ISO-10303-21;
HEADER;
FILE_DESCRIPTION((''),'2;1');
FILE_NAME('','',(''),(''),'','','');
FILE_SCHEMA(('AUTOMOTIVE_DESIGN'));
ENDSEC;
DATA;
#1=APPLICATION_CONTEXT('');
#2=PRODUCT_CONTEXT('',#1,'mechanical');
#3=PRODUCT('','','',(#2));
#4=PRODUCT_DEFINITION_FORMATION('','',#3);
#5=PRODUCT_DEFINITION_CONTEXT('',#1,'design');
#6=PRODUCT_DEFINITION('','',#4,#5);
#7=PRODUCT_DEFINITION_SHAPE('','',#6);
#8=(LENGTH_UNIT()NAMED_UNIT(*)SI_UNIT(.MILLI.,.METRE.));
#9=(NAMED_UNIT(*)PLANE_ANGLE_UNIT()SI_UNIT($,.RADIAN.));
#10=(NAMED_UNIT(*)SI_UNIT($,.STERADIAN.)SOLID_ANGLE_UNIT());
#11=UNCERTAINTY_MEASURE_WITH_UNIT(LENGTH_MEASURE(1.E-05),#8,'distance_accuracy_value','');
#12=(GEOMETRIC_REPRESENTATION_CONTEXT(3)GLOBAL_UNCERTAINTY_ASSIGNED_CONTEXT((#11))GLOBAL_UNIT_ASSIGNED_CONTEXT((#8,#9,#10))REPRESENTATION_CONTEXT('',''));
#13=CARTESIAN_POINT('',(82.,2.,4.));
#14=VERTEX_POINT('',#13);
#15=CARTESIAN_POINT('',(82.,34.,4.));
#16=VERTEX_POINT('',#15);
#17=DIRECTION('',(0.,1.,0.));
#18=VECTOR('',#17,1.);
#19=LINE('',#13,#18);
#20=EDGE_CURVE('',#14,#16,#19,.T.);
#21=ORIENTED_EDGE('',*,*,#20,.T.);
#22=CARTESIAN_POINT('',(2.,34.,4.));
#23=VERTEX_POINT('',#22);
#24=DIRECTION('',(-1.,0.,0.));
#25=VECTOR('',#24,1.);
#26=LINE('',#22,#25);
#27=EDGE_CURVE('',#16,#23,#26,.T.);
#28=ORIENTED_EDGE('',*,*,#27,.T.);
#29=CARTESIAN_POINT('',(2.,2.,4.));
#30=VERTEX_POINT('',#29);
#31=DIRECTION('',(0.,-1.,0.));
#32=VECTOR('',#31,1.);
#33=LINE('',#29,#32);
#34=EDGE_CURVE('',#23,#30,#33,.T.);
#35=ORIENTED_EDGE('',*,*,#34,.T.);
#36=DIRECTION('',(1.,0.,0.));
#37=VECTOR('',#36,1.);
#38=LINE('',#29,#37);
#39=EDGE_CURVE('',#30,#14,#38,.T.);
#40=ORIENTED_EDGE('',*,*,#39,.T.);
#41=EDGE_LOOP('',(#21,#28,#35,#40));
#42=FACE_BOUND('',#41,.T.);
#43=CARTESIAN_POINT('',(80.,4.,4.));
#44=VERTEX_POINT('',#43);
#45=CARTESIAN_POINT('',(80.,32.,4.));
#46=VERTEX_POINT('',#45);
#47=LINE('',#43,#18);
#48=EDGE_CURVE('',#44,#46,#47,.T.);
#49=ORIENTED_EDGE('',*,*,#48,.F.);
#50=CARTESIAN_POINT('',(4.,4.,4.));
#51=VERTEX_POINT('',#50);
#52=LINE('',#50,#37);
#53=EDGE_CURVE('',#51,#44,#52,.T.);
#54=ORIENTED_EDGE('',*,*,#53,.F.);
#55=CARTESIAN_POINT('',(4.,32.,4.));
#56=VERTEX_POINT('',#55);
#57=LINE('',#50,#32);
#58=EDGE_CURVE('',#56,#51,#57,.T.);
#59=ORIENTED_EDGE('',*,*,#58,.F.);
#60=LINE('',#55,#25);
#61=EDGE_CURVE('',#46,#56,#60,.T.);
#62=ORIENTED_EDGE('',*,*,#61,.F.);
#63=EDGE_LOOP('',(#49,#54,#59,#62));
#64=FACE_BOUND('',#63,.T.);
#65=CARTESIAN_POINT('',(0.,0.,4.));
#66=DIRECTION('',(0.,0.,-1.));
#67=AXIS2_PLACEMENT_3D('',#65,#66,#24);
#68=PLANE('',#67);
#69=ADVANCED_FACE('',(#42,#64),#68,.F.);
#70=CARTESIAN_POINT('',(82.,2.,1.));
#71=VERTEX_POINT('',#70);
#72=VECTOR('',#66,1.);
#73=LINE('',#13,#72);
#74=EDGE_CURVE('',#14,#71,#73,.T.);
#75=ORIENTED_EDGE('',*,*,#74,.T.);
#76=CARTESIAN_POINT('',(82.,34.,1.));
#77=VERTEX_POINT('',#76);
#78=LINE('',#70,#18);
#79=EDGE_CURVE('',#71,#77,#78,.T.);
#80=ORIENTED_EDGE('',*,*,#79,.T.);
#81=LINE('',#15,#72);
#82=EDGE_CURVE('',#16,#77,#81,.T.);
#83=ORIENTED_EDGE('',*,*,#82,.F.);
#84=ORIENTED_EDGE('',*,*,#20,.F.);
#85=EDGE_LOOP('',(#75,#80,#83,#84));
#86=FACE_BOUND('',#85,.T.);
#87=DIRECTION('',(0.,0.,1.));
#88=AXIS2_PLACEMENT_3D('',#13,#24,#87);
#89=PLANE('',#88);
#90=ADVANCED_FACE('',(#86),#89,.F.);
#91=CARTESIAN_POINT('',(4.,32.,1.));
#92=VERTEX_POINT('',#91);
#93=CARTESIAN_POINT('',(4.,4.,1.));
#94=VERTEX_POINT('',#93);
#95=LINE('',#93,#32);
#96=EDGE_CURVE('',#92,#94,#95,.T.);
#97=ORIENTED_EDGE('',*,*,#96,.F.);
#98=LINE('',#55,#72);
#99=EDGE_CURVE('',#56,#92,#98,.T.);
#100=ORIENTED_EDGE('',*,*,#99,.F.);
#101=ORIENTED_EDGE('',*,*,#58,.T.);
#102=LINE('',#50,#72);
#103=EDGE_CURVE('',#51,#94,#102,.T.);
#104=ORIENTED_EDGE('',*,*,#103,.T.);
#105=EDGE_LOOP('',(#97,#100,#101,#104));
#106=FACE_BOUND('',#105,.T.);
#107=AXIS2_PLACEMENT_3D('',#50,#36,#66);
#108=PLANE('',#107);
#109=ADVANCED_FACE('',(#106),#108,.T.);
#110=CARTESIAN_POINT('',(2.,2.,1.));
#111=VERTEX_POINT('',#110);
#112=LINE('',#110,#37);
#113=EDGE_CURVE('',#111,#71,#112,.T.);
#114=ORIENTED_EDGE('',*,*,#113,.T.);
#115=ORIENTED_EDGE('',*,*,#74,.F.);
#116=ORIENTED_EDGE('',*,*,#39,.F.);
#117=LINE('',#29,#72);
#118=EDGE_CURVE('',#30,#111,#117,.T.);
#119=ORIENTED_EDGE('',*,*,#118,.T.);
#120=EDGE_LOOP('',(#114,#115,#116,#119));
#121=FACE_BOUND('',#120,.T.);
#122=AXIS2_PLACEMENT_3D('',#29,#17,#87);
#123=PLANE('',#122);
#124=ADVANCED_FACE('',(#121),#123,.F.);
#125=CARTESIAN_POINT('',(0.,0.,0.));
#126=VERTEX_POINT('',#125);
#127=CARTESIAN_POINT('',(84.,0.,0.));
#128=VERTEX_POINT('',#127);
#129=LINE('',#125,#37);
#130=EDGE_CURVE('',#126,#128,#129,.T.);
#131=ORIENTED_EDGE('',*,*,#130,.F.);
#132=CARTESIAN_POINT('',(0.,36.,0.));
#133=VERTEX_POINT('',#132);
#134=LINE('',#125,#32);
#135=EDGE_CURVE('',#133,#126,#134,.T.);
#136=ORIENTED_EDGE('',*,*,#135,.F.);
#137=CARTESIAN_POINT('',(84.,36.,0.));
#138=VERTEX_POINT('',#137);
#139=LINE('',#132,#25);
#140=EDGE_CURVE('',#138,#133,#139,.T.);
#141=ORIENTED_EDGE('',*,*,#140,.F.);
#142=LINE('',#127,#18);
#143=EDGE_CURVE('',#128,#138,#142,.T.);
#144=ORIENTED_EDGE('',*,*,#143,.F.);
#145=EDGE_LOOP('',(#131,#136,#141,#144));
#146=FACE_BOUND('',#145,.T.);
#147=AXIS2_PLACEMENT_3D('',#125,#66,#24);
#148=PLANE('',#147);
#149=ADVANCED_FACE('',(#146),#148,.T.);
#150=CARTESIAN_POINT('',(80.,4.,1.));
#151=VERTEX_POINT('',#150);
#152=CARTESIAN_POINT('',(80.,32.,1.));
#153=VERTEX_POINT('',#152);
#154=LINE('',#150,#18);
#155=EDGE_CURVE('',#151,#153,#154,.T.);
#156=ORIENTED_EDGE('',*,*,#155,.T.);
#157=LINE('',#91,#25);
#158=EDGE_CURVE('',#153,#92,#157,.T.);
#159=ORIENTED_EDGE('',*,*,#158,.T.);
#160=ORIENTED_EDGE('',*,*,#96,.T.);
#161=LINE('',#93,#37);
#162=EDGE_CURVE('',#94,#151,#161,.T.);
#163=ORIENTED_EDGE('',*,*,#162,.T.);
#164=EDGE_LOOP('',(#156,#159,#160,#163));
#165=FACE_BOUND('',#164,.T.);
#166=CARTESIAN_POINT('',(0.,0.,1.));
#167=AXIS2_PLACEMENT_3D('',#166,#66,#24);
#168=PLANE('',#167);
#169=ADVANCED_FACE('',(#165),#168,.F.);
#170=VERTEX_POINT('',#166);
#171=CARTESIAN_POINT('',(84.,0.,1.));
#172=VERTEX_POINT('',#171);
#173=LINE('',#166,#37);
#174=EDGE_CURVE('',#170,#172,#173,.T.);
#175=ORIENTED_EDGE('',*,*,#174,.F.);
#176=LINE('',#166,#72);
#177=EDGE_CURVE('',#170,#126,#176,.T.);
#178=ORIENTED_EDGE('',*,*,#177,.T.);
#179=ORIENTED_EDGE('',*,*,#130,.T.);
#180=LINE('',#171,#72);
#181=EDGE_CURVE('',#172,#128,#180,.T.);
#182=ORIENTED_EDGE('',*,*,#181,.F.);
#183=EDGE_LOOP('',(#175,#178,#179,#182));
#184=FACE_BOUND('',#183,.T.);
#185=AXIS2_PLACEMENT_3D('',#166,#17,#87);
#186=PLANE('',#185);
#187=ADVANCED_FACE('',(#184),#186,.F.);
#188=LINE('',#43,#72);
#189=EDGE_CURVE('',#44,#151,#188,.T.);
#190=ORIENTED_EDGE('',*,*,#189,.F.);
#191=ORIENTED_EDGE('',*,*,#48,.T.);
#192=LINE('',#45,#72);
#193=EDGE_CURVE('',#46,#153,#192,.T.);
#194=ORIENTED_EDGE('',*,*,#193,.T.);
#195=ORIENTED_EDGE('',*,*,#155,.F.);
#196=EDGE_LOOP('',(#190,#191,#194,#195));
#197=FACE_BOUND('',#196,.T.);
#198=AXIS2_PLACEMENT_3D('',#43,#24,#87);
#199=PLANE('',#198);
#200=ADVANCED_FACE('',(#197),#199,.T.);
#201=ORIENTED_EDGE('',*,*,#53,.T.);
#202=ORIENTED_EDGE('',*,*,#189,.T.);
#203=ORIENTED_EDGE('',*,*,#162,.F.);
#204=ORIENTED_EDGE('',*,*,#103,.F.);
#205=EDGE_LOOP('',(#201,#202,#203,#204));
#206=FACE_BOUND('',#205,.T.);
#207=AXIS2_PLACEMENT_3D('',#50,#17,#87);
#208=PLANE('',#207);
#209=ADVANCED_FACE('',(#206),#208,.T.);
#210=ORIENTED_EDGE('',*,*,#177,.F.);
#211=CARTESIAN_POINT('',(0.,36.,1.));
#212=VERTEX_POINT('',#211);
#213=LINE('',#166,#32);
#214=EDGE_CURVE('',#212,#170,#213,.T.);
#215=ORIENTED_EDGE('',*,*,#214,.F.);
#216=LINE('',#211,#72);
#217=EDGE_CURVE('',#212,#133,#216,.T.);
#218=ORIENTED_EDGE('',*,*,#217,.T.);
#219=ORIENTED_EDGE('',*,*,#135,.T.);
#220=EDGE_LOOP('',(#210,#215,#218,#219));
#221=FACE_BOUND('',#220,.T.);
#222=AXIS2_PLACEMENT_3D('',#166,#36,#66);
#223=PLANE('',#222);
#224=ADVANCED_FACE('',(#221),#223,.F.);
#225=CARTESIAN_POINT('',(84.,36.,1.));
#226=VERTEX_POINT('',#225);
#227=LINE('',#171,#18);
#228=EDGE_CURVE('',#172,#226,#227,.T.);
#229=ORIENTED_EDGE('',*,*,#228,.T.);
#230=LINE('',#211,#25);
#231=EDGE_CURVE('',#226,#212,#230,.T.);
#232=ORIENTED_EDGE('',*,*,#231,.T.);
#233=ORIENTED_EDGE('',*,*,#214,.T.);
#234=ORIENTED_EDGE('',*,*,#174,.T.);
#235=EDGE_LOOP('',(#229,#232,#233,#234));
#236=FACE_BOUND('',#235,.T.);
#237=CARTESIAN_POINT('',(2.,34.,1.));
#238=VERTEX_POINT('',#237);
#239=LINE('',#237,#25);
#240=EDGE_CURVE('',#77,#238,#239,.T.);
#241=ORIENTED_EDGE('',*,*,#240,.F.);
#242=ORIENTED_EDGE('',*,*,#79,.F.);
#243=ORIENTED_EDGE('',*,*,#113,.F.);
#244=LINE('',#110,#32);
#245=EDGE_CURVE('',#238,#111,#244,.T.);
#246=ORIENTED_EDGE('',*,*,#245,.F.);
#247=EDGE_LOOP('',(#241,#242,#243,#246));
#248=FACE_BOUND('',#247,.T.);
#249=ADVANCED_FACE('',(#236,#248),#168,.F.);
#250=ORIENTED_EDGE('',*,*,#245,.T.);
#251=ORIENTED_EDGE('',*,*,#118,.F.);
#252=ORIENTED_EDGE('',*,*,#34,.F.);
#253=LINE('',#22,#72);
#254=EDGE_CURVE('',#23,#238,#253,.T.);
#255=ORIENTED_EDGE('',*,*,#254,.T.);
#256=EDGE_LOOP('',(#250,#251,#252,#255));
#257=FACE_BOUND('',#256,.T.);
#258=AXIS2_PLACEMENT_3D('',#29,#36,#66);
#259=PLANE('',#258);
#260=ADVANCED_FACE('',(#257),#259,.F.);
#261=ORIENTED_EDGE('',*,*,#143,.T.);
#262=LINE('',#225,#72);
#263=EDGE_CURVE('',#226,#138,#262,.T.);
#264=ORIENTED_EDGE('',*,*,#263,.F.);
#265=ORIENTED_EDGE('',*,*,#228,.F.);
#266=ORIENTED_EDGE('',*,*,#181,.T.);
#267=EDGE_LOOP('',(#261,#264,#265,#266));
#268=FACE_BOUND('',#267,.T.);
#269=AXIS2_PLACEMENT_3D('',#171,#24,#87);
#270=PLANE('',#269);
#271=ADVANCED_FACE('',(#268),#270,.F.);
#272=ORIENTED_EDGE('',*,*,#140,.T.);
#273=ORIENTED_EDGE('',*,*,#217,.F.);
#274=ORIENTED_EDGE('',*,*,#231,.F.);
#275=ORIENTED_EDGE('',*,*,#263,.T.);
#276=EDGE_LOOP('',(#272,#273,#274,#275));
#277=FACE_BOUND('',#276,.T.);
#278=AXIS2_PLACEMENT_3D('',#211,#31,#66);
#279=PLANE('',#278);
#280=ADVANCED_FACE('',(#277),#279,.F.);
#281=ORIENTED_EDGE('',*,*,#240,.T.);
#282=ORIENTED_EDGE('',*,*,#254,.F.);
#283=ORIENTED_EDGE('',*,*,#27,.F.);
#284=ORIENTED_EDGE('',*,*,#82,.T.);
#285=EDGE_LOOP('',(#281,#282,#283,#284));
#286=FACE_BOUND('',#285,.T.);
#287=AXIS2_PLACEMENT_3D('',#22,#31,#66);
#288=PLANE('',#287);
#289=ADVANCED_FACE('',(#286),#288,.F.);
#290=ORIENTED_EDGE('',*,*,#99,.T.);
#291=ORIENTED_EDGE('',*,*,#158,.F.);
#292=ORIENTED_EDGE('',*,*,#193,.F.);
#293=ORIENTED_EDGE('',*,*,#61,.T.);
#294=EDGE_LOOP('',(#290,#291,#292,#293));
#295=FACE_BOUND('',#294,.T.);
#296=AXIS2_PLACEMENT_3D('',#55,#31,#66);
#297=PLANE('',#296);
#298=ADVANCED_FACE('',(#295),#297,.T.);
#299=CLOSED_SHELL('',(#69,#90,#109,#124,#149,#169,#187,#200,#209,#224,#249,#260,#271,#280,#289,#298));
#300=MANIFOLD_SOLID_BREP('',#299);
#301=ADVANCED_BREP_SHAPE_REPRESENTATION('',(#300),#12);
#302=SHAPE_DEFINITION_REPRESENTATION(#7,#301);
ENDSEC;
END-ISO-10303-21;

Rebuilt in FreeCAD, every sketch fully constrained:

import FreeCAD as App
import Part
import Sketcher
from FreeCAD import Vector
Q = App.Units.Quantity


def add_polygon(sketch, points):
    """Adds a closed chain of lines whose ends are joined by coincident constraints."""
    first, n = sketch.GeometryCount, len(points)
    for a, b in zip(points, points[1:] + points[:1]):
        sketch.addGeometry(Part.LineSegment(App.Vector(*a, 0), App.Vector(*b, 0)), False)
    for i in range(n):
        sketch.addConstraint(Sketcher.Constraint("Coincident", first + i, 2, first + (i + 1) % n, 1))

doc = App.newDocument("Part")
params = doc.addObject("Spreadsheet::Sheet", "Params")
for row, (alias, value) in enumerate([
    ("sketch1_width", "84 mm"),
    ("sketch1_height", "36 mm"),
    ("pad1_length", "1 mm"),
    ("sketch2_width", "80 mm"),
    ("sketch2_width2", "76 mm"),
    ("sketch2_height", "32 mm"),
    ("sketch2_height2", "28 mm"),
    ("pad2_length", "3 mm"),
], start=1):
    params.set(f"A{row}", alias)
    params.set(f"B{row}", "=" + value)
    params.setAlias(f"B{row}", alias)

body = doc.addObject("PartDesign::Body", "Body")

sketch1 = body.newObject("Sketcher::SketchObject", "Sketch")
sketch1.AttachmentSupport = (doc.getObject("XY_Plane"), [""])
sketch1.MapMode = "FlatFace"
add_polygon(sketch1, [(0, 36), (0, 0), (84, 0), (84, 36)])
sketch1.addConstraint(Sketcher.Constraint("Vertical", 0))
sketch1.addConstraint(Sketcher.Constraint("Horizontal", 1))
sketch1.addConstraint(Sketcher.Constraint("Vertical", 2))
sketch1.addConstraint(Sketcher.Constraint("Horizontal", 3))
sketch1.addConstraint(Sketcher.Constraint("Coincident", 0, 2, -1, 1))
sketch1.addConstraint(Sketcher.Constraint("DistanceX", 1, 1, 1, 2, Q("84 mm")))
sketch1.addConstraint(Sketcher.Constraint("DistanceY", 0, 2, 0, 1, Q("36 mm")))
sketch1.setExpression("Constraints[9]", "Params.sketch1_width")
sketch1.setExpression("Constraints[10]", "Params.sketch1_height")
pad1 = body.newObject("PartDesign::Pad", "Pad")
pad1.Profile = sketch1
pad1.setExpression("Length", "Params.pad1_length")

sketch2 = body.newObject("Sketcher::SketchObject", "Sketch001")
sketch2.AttachmentSupport = (doc.getObject("XY_Plane"), [""])
sketch2.MapMode = "FlatFace"
sketch2.AttachmentOffset = App.Placement(Vector(0, 0, 1), App.Rotation())
add_polygon(sketch2, [(2, 34), (2, 2), (82, 2), (82, 34)])
add_polygon(sketch2, [(80, 4), (4, 4), (4, 32), (80, 32)])
sketch2.addConstraint(Sketcher.Constraint("Vertical", 0))
sketch2.addConstraint(Sketcher.Constraint("Horizontal", 1))
sketch2.addConstraint(Sketcher.Constraint("Vertical", 2))
sketch2.addConstraint(Sketcher.Constraint("Horizontal", 3))
sketch2.addConstraint(Sketcher.Constraint("Horizontal", 4))
sketch2.addConstraint(Sketcher.Constraint("Vertical", 5))
sketch2.addConstraint(Sketcher.Constraint("Horizontal", 6))
sketch2.addConstraint(Sketcher.Constraint("Vertical", 7))
sketch2.addConstraint(Sketcher.Constraint("DistanceX", 1, 1, 1, 2, Q("80 mm")))
sketch2.addConstraint(Sketcher.Constraint("DistanceX", 4, 2, 4, 1, Q("76 mm")))
sketch2.addConstraint(Sketcher.Constraint("DistanceY", 0, 2, 0, 1, Q("32 mm")))
sketch2.addConstraint(Sketcher.Constraint("DistanceY", 5, 1, 5, 2, Q("28 mm")))
sketch2.addConstraint(Sketcher.Constraint("DistanceX", -1, 1, 0, 2, Q("2 mm")))
sketch2.addConstraint(Sketcher.Constraint("DistanceY", -1, 1, 0, 2, Q("2 mm")))
sketch2.addConstraint(Sketcher.Constraint("DistanceX", -1, 1, 4, 2, Q("4 mm")))
sketch2.addConstraint(Sketcher.Constraint("DistanceY", -1, 1, 4, 2, Q("4 mm")))
sketch2.setExpression("Constraints[16]", "Params.sketch2_width")
sketch2.setExpression("Constraints[17]", "Params.sketch2_width2")
sketch2.setExpression("Constraints[18]", "Params.sketch2_height")
sketch2.setExpression("Constraints[19]", "Params.sketch2_height2")
pad2 = body.newObject("PartDesign::Pad", "Pad001")
pad2.Profile = sketch2
pad2.setExpression("Length", "Params.pad2_length")

doc.recompute()
